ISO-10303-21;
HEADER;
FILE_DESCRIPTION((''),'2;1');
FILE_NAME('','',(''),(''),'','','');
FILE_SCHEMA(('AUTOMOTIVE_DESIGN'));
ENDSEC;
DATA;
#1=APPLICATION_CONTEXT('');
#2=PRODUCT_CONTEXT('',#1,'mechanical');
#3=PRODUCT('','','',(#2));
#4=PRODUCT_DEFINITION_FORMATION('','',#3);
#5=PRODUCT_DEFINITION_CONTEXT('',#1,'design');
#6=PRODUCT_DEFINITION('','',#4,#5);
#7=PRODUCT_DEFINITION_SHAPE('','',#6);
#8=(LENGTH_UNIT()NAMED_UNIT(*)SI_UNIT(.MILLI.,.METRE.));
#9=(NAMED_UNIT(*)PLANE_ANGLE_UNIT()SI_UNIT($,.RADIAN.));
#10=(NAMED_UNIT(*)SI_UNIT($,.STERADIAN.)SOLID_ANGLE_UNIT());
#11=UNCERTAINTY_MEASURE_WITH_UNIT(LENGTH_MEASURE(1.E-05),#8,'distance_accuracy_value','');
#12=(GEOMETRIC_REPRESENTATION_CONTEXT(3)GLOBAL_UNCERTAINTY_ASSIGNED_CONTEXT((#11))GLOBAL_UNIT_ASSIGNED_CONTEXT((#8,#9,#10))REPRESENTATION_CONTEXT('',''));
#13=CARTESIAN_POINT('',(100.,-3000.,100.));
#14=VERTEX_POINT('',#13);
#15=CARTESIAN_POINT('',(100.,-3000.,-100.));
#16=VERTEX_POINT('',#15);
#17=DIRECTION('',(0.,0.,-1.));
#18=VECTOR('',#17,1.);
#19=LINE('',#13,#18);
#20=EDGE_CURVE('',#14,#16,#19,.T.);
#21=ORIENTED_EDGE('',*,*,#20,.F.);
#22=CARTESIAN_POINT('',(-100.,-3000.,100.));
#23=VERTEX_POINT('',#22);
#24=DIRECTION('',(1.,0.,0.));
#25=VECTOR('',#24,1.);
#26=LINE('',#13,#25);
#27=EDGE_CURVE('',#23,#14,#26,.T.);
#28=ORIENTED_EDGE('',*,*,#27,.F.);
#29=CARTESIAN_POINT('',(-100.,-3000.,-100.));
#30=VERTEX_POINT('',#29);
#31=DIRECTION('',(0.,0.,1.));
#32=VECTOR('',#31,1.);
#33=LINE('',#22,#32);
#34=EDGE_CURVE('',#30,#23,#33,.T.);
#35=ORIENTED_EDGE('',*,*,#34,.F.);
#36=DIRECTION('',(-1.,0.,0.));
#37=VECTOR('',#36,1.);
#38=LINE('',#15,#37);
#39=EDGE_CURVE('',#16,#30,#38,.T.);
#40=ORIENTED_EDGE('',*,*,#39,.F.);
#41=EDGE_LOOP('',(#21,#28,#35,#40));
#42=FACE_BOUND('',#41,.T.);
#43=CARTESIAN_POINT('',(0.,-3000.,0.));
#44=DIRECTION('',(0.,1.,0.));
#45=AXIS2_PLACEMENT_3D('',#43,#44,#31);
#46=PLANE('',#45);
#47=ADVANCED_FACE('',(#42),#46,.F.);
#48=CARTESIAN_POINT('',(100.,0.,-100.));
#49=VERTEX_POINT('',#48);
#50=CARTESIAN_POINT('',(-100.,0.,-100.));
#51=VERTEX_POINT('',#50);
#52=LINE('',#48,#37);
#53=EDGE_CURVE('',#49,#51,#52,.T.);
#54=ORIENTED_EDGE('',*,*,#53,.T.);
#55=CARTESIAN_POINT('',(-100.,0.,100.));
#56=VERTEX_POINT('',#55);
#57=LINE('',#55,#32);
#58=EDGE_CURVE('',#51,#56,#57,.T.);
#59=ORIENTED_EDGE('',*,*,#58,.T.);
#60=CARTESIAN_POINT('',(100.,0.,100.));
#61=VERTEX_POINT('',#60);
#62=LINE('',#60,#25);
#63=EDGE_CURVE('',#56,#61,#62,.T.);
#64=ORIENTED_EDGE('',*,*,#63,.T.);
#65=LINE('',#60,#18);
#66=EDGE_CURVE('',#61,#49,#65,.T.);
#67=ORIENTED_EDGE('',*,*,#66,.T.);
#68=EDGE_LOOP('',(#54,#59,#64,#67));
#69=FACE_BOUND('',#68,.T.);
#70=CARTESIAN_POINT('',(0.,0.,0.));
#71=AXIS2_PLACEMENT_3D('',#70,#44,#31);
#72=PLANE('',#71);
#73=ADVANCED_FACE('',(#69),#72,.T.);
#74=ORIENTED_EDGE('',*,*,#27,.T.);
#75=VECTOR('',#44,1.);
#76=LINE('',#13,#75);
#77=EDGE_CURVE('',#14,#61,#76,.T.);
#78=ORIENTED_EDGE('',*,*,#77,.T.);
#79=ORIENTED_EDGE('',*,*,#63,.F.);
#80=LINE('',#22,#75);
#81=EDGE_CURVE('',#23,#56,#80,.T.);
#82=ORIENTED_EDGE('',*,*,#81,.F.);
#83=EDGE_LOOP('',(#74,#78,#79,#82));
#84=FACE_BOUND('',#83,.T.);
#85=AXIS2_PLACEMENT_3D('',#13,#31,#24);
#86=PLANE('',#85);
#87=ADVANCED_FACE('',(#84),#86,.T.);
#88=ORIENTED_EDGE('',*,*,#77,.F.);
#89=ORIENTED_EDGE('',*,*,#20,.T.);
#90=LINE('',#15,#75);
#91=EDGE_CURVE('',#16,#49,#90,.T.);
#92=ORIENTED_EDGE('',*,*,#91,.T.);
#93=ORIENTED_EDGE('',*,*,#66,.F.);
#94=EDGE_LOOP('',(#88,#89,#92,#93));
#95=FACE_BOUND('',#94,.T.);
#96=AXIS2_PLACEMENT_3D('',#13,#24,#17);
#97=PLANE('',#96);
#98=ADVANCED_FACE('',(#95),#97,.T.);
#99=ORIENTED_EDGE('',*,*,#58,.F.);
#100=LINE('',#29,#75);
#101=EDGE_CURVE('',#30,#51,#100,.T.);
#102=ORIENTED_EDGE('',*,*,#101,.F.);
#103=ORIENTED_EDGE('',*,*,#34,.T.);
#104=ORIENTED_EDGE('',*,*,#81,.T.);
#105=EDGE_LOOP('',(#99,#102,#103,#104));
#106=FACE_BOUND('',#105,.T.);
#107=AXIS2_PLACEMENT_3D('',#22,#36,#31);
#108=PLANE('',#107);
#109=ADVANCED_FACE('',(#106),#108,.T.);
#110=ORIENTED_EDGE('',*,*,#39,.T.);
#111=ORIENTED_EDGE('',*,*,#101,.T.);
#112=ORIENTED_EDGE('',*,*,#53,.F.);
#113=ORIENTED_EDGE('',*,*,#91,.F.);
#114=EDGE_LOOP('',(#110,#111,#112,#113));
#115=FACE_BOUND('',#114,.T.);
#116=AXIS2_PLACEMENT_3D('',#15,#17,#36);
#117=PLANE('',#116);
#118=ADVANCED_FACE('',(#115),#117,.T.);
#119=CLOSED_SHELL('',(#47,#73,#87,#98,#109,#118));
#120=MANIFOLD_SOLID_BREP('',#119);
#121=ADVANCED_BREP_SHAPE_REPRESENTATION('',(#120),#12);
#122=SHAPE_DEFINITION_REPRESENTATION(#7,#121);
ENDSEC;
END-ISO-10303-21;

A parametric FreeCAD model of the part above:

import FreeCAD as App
import Part
import Sketcher
from FreeCAD import Vector


def add_polygon(sketch, points):
    """Adds a closed chain of lines whose ends are joined by coincident constraints."""
    first, n = sketch.GeometryCount, len(points)
    for a, b in zip(points, points[1:] + points[:1]):
        sketch.addGeometry(Part.LineSegment(App.Vector(*a, 0), App.Vector(*b, 0)), False)
    for i in range(n):
        sketch.addConstraint(Sketcher.Constraint("Coincident", first + i, 2, first + (i + 1) % n, 1))

doc = App.newDocument("Part")
body = doc.addObject("PartDesign::Body", "Body")

# Sketch on XZ plane
sketch1 = body.newObject("Sketcher::SketchObject", "Sketch")
sketch1.AttachmentSupport = (doc.getObject("XZ_Plane"), [""])
sketch1.MapMode = "FlatFace"
add_polygon(sketch1, [(-100, -100), (-100, 100), (100, 100), (100, -100)])  # lines 0-3
sketch1.addConstraint(Sketcher.Constraint("Vertical", 0))
sketch1.addConstraint(Sketcher.Constraint("Horizontal", 1))
sketch1.addConstraint(Sketcher.Constraint("Vertical", 2))
sketch1.addConstraint(Sketcher.Constraint("Horizontal", 3))
sketch1.addConstraint(Sketcher.Constraint("Symmetric", 0, 2, 2, 2, -1, 1))
sketch1.addConstraint(Sketcher.Constraint("Equal", 3, 0))
sketch1.addConstraint(Sketcher.Constraint("DistanceX", 1, 1, 1, 2, 200.0))
pad1 = body.newObject("PartDesign::Pad", "Pad")
pad1.Profile = sketch1
pad1.Length = 3000

doc.recompute()
